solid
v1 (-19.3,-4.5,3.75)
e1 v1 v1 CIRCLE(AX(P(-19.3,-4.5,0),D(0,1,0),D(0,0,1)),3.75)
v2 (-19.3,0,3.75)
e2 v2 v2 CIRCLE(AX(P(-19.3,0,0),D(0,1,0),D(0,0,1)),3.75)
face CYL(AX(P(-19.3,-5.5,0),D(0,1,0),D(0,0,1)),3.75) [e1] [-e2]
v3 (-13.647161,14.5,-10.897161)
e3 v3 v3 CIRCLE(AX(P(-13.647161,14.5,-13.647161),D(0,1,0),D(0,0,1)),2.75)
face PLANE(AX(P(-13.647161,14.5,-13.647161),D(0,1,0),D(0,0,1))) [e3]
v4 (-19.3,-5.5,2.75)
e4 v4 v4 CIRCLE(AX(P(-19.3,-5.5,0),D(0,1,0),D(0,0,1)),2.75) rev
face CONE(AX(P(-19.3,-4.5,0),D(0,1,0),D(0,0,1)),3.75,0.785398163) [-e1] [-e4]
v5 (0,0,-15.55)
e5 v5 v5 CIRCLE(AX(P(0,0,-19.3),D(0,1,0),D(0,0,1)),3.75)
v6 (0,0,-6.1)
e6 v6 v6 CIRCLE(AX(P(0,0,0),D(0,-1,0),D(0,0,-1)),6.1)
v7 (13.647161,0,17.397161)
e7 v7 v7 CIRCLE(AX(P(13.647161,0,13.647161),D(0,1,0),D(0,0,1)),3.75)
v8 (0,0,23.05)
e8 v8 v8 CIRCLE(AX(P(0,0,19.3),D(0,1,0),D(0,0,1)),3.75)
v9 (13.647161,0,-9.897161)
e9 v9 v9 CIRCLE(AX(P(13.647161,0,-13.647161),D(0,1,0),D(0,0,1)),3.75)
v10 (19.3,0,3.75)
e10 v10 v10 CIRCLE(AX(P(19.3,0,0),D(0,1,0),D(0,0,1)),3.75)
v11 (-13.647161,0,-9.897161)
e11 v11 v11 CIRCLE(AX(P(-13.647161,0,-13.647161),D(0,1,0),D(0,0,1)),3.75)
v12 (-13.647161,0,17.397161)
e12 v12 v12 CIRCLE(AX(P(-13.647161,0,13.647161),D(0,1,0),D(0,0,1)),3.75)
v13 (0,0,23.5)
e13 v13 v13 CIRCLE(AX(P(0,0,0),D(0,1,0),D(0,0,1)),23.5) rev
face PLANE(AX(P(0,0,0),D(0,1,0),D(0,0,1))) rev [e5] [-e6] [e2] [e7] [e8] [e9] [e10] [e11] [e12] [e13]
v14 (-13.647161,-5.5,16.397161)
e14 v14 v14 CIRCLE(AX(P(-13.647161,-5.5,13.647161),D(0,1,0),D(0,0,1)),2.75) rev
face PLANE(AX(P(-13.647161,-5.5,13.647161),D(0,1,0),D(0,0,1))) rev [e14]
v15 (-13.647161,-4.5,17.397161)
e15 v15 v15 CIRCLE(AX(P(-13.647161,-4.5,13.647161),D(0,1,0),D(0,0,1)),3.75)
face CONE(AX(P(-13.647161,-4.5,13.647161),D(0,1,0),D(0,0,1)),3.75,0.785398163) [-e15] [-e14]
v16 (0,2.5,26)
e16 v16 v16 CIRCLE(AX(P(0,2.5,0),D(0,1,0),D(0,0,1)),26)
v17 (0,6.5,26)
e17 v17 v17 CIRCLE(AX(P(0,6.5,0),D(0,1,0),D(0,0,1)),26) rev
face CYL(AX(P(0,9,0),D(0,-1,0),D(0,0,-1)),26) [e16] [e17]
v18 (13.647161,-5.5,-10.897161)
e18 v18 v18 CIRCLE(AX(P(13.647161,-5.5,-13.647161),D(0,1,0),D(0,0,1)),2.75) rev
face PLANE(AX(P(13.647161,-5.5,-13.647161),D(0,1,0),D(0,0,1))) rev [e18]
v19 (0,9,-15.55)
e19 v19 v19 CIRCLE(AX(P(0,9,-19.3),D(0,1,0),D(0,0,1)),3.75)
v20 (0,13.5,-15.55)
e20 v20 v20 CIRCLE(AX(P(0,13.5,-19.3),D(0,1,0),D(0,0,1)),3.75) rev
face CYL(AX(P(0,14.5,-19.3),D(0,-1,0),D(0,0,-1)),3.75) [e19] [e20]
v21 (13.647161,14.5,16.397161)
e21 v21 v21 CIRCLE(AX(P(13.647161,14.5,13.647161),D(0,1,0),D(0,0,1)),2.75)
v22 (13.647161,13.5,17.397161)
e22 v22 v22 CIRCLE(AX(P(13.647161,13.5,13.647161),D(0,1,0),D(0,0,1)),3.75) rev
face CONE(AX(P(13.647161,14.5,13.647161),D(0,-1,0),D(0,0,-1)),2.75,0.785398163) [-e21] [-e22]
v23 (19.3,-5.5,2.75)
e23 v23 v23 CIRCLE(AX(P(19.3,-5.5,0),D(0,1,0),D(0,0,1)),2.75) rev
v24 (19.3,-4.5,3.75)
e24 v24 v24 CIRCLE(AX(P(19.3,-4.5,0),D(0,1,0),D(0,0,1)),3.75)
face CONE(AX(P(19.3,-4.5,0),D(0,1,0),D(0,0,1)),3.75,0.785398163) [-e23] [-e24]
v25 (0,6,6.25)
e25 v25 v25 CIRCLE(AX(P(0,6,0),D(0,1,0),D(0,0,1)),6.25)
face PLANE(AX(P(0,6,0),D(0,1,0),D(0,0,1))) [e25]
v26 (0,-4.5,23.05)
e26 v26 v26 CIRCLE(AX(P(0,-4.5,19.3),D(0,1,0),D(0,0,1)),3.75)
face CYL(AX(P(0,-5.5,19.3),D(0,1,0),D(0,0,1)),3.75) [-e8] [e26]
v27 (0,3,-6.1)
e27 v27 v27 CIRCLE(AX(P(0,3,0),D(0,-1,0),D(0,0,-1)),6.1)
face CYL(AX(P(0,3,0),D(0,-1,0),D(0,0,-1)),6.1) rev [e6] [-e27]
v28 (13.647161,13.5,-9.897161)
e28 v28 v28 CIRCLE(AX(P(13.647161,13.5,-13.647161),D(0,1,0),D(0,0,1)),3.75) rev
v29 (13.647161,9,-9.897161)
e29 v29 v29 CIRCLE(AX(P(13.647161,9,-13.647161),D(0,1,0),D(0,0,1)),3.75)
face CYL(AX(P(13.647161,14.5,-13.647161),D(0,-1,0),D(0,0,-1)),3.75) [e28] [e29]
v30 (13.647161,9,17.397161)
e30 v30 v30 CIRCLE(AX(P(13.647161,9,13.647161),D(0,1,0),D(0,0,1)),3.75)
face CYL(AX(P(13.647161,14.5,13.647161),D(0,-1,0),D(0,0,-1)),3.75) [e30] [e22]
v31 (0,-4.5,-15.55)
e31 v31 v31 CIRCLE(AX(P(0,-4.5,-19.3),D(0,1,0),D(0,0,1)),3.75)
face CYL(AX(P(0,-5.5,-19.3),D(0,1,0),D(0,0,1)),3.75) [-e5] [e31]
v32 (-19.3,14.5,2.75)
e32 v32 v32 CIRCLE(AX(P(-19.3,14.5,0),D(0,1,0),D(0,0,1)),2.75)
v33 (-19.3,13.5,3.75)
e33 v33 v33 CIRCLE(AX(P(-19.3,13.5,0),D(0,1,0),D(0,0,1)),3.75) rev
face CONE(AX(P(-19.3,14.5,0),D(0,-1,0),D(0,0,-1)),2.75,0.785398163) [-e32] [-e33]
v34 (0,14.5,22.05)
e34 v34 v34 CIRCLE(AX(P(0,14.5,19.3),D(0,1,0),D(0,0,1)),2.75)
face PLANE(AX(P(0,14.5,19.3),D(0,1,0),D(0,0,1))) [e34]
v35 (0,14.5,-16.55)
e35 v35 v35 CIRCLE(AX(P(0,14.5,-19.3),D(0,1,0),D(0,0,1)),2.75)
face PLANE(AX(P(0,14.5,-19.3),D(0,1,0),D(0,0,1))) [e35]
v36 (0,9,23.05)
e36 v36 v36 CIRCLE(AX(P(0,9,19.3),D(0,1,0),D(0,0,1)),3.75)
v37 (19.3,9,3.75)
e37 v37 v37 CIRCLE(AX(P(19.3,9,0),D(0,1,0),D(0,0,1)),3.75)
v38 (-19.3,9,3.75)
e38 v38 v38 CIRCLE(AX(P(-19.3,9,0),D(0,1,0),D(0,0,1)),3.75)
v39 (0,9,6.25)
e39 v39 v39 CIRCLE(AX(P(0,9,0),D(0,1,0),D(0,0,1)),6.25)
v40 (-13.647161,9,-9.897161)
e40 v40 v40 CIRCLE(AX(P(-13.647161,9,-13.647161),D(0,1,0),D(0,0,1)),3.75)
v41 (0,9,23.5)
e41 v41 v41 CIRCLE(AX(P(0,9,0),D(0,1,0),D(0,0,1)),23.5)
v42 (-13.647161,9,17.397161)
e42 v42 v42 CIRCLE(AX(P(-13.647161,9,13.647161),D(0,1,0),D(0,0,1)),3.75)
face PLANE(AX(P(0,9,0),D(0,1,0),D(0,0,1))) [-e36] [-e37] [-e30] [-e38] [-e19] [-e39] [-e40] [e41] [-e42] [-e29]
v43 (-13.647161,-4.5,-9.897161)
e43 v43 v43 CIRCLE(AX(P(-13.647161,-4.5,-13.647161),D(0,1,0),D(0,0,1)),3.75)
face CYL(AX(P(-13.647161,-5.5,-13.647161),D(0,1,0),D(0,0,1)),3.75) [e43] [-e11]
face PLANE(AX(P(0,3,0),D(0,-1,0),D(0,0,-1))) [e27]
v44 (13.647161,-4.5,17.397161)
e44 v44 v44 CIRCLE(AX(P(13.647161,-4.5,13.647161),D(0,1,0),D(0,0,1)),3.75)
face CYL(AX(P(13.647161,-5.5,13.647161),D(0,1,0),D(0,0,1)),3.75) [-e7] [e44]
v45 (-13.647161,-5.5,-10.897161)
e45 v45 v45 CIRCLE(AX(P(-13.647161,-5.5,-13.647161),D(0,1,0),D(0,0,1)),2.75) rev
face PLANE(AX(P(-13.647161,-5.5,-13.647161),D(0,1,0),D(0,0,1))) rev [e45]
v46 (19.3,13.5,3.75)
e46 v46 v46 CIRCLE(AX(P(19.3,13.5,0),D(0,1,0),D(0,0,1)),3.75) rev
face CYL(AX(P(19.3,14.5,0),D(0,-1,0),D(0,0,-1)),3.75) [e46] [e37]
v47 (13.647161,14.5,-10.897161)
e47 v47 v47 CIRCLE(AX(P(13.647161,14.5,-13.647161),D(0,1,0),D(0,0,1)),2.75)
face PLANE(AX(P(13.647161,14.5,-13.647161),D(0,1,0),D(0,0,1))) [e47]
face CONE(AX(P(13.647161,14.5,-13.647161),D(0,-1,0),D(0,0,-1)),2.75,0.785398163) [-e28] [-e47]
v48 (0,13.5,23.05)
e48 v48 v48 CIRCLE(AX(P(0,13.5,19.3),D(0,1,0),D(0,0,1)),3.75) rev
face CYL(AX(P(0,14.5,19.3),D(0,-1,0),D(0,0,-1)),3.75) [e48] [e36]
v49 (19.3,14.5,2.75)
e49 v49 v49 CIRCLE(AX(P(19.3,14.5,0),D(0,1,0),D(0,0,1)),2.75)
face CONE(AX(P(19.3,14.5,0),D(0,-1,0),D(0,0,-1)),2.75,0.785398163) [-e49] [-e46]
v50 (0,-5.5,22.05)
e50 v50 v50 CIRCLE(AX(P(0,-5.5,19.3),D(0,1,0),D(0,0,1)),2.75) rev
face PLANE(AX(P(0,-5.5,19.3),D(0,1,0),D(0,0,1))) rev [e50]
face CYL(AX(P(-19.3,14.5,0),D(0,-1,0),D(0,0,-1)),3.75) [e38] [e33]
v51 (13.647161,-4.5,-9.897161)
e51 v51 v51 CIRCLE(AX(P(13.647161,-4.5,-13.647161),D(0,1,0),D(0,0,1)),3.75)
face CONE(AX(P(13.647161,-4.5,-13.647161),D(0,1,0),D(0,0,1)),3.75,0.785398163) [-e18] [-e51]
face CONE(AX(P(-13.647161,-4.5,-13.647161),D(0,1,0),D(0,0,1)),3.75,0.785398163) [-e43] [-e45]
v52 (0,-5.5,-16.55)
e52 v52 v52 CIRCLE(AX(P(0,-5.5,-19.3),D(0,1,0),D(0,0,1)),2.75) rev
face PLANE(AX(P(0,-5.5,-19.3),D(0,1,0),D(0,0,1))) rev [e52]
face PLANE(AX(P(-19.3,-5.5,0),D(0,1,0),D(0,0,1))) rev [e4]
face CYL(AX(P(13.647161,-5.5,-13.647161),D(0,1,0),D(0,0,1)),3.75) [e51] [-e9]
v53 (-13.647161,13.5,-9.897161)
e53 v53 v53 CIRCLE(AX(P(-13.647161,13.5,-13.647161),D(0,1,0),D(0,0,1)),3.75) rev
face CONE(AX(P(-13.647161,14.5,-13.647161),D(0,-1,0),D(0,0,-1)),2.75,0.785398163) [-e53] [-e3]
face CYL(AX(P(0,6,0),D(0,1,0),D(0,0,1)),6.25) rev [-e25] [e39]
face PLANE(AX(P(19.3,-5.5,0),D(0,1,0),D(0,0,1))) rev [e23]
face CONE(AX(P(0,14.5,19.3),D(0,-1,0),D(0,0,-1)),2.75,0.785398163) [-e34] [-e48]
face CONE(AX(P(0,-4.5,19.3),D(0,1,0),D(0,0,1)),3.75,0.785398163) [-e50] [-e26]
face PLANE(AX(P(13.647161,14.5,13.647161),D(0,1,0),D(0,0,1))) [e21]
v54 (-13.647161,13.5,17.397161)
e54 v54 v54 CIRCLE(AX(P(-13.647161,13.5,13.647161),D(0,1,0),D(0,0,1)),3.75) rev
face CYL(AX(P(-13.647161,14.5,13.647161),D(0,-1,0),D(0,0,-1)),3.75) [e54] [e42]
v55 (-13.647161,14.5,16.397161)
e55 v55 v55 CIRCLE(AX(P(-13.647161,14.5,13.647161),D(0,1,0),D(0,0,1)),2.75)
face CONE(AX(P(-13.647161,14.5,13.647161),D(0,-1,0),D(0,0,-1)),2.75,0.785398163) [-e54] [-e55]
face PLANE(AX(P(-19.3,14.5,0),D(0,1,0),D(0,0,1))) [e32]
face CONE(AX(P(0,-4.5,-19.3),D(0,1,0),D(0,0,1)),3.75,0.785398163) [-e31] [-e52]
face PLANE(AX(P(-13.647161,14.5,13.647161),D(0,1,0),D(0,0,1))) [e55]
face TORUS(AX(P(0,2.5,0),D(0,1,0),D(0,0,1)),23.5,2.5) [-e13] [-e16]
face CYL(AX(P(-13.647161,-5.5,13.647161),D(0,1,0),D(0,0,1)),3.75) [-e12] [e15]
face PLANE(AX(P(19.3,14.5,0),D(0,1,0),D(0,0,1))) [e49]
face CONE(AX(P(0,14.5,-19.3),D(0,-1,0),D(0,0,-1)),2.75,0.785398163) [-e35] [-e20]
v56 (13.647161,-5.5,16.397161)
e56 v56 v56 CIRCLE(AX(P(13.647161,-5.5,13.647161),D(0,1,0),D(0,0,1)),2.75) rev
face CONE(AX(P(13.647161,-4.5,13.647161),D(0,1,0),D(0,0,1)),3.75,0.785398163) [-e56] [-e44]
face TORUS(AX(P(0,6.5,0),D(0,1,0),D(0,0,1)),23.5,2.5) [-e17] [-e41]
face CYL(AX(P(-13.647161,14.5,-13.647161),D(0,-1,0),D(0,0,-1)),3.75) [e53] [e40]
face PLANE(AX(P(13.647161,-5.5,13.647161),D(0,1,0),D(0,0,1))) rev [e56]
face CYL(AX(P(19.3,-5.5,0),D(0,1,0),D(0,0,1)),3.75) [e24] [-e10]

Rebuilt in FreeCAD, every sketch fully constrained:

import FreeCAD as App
import Part
import Sketcher
from FreeCAD import Vector


def edges_at(feature, points):
    """Names of the edges that pass closest to the given points."""
    edges = feature.Shape.Edges
    near = lambda p: min(range(len(edges)), key=lambda i: edges[i].distToShape(Part.Vertex(*p))[0])
    return sorted({f"Edge{near(p) + 1}" for p in points})

doc = App.newDocument("Part")
body = doc.addObject("PartDesign::Body", "Body")

sketch1 = body.newObject("Sketcher::SketchObject", "Sketch")
sketch1.AttachmentSupport = (doc.getObject("XZ_Plane"), [""])
sketch1.MapMode = "FlatFace"
sketch1.addGeometry(Part.Circle(Vector(0, 0, 0), Vector(0, 0, 1), 26), False)
sketch1.addConstraint([
    Sketcher.Constraint("Coincident", 0, 3, -1, 1),
    Sketcher.Constraint("Diameter", 0, 52.0),
])
pad1 = body.newObject("PartDesign::Pad", "Pad")
pad1.Profile = sketch1
pad1.Length = 9
pad1.Reversed = True

sketch2 = body.newObject("Sketcher::SketchObject", "Sketch001")
sketch2.AttachmentSupport = (doc.getObject("XZ_Plane"), [""])
sketch2.MapMode = "FlatFace"
sketch2.addGeometry(Part.Circle(Vector(0, 0, 0), Vector(0, 0, 1), 6), False)
sketch2.addConstraint([
    Sketcher.Constraint("Coincident", 0, 3, -1, 1),
    Sketcher.Constraint("Diameter", 0, 12.2),
])
pocket1 = body.newObject("PartDesign::Pocket", "Pocket")
pocket1.Profile = sketch2
pocket1.Length = 3

sketch3 = body.newObject("Sketcher::SketchObject", "Sketch002")
sketch3.AttachmentSupport = (doc.getObject("XZ_Plane"), [""])
sketch3.MapMode = "FlatFace"
sketch3.AttachmentOffset = App.Placement(Vector(0, 0, -9), App.Rotation())
sketch3.addGeometry(Part.Circle(Vector(0, 0, 0), Vector(0, 0, 1), 6), False)
sketch3.addConstraint([
    Sketcher.Constraint("Coincident", 0, 3, -1, 1),
    Sketcher.Constraint("Diameter", 0, 12.5),
])
pocket2 = body.newObject("PartDesign::Pocket", "Pocket001")
pocket2.Profile = sketch3
pocket2.Length = 3
pocket2.Reversed = True

sketch4 = body.newObject("Sketcher::SketchObject", "Sketch003")
sketch4.AttachmentSupport = (doc.getObject("XZ_Plane"), [""])
sketch4.MapMode = "FlatFace"
sketch4.addGeometry([
    Part.Circle(Vector(-13.6, -13.6, 0), Vector(0, 0, 1), 3.8),
    Part.Circle(Vector(0, -19.3, 0), Vector(0, 0, 1), 3.8),
    Part.Circle(Vector(13.6, -13.6, 0), Vector(0, 0, 1), 3.8),
    Part.Circle(Vector(19.3, 0, 0), Vector(0, 0, 1), 3.8),
    Part.Circle(Vector(13.6, 13.6, 0), Vector(0, 0, 1), 3.8),
    Part.Circle(Vector(0, 19.3, 0), Vector(0, 0, 1), 3.8),
    Part.Circle(Vector(-13.6, 13.6, 0), Vector(0, 0, 1), 3.8),
    Part.Circle(Vector(-19.3, 0, 0), Vector(0, 0, 1), 3.8),
], False)
sketch4.addConstraint([
    Sketcher.Constraint("Equal", 0, 1),
    Sketcher.Constraint("Equal", 1, 2),
    Sketcher.Constraint("Equal", 2, 3),
    Sketcher.Constraint("Equal", 3, 4),
    Sketcher.Constraint("Equal", 4, 5),
    Sketcher.Constraint("Equal", 5, 6),
    Sketcher.Constraint("Equal", 6, 7),
    Sketcher.Constraint("Symmetric", 0, 3, 4, 3, -1, 1),
    Sketcher.Constraint("Symmetric", 1, 3, 5, 3, -1, 1),
    Sketcher.Constraint("Symmetric", 2, 3, 6, 3, -1, 1),
    Sketcher.Constraint("Symmetric", 3, 3, 7, 3, -1, 1),
    Sketcher.Constraint("Symmetric", 0, 3, 2, 3, -2),
    Sketcher.Constraint("PointOnObject", 1, 3, -2),
    Sketcher.Constraint("PointOnObject", 3, 3, -1),
    Sketcher.Constraint("Diameter", 0, 7.5),
    Sketcher.Constraint("DistanceY", 1, 3, -1, 1, 19.3),
    Sketcher.Constraint("DistanceX", -1, 1, 3, 3, 19.3),
    Sketcher.Constraint("DistanceX", 0, 3, -1, 1, 13.647161),
    Sketcher.Constraint("DistanceY", 0, 3, -1, 1, 13.647161),
])
pad2 = body.newObject("PartDesign::Pad", "Pad001")
pad2.Profile = sketch4
pad2.Length = 5.5

sketch5 = body.newObject("Sketcher::SketchObject", "Sketch004")
sketch5.AttachmentSupport = (doc.getObject("XZ_Plane"), [""])
sketch5.MapMode = "FlatFace"
sketch5.AttachmentOffset = App.Placement(Vector(0, 0, -9), App.Rotation())
sketch5.addGeometry([
    Part.Circle(Vector(-13.6, -13.6, 0), Vector(0, 0, 1), 3.8),
    Part.Circle(Vector(0, -19.3, 0), Vector(0, 0, 1), 3.8),
    Part.Circle(Vector(13.6, -13.6, 0), Vector(0, 0, 1), 3.8),
    Part.Circle(Vector(19.3, 0, 0), Vector(0, 0, 1), 3.8),
    Part.Circle(Vector(13.6, 13.6, 0), Vector(0, 0, 1), 3.8),
    Part.Circle(Vector(0, 19.3, 0), Vector(0, 0, 1), 3.8),
    Part.Circle(Vector(-13.6, 13.6, 0), Vector(0, 0, 1), 3.8),
    Part.Circle(Vector(-19.3, 0, 0), Vector(0, 0, 1), 3.8),
], False)
sketch5.addConstraint([
    Sketcher.Constraint("Equal", 0, 1),
    Sketcher.Constraint("Equal", 1, 2),
    Sketcher.Constraint("Equal", 2, 3),
    Sketcher.Constraint("Equal", 3, 4),
    Sketcher.Constraint("Equal", 4, 5),
    Sketcher.Constraint("Equal", 5, 6),
    Sketcher.Constraint("Equal", 6, 7),
    Sketcher.Constraint("Symmetric", 0, 3, 4, 3, -1, 1),
    Sketcher.Constraint("Symmetric", 1, 3, 5, 3, -1, 1),
    Sketcher.Constraint("Symmetric", 2, 3, 6, 3, -1, 1),
    Sketcher.Constraint("Symmetric", 3, 3, 7, 3, -1, 1),
    Sketcher.Constraint("Symmetric", 0, 3, 2, 3, -2),
    Sketcher.Constraint("PointOnObject", 1, 3, -2),
    Sketcher.Constraint("PointOnObject", 3, 3, -1),
    Sketcher.Constraint("Diameter", 0, 7.5),
    Sketcher.Constraint("DistanceY", 1, 3, -1, 1, 19.3),
    Sketcher.Constraint("DistanceX", -1, 1, 3, 3, 19.3),
    Sketcher.Constraint("DistanceX", 0, 3, -1, 1, 13.647161),
    Sketcher.Constraint("DistanceY", 0, 3, -1, 1, 13.647161),
])
pad3 = body.newObject("PartDesign::Pad", "Pad002")
pad3.Profile = sketch5
pad3.Length = 5.5
pad3.Reversed = True
doc.recompute()

chamfer = body.newObject("PartDesign::Chamfer", "Chamfer")
chamfer.Base = (pad3, edges_at(pad3, [
    (-17.397, -5.5, -13.647),
    (-3.75, -5.5, -19.3),
    (9.897, -5.5, -13.647),
    (15.55, -5.5, 0),
    (9.897, -5.5, 13.647),
    (-3.75, -5.5, 19.3),
    (-17.397, -5.5, 13.647),
    (-23.05, -5.5, 0),
    (15.55, 14.5, 0),
    (9.897, 14.5, -13.647),
    (-3.75, 14.5, -19.3),
    (-17.397, 14.5, -13.647),
    (-3.75, 14.5, 19.3),
    (9.897, 14.5, 13.647),
    (-23.05, 14.5, 0),
    (-17.397, 14.5, 13.647),
]))
chamfer.Size = 1
doc.recompute()

fillet = body.newObject("PartDesign::Fillet", "Fillet")
fillet.Base = (chamfer, edges_at(chamfer, [(-26, 0, 0), (-26, 9, 0)]))
fillet.Radius = 2.5

doc.recompute()
